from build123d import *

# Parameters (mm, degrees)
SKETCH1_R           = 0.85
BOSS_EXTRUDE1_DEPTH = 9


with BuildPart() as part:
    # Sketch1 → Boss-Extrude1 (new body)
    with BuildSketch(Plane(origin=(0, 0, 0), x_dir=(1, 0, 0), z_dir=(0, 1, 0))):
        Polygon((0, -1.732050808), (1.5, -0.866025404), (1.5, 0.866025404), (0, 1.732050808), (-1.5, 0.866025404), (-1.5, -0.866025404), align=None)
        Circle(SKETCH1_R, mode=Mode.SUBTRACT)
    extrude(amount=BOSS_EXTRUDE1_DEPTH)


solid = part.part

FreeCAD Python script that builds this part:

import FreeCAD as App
import Part
import Sketcher
from FreeCAD import Vector
Q = App.Units.Quantity

doc = App.newDocument("Part")
body = doc.addObject("PartDesign::Body", "Body")

sketch1 = body.newObject("Sketcher::SketchObject", "Sketch")
sketch1.AttachmentSupport = (doc.getObject("XZ_Plane"), [""])
sketch1.MapMode = "FlatFace"
sketch1.addGeometry([
    Part.LineSegment(Vector(0, 1.7, 0), Vector(1.5, 0.9, 0)),
    Part.LineSegment(Vector(1.5, 0.9, 0), Vector(1.5, -0.9, 0)),
    Part.LineSegment(Vector(1.5, -0.9, 0), Vector(0, -1.7, 0)),
    Part.LineSegment(Vector(0, -1.7, 0), Vector(-1.5, -0.9, 0)),
    Part.LineSegment(Vector(-1.5, -0.9, 0), Vector(-1.5, 0.9, 0)),
    Part.LineSegment(Vector(-1.5, 0.9, 0), Vector(0, 1.7, 0)),
    Part.Circle(Vector(0, 0, 0), Vector(0, 0, 1), 0.8),
], False)
sketch1.addConstraint([
    Sketcher.Constraint("Coincident", 0, 2, 1, 1),
    Sketcher.Constraint("Coincident", 1, 2, 2, 1),
    Sketcher.Constraint("Coincident", 2, 2, 3, 1),
    Sketcher.Constraint("Coincident", 3, 2, 4, 1),
    Sketcher.Constraint("Coincident", 4, 2, 5, 1),
    Sketcher.Constraint("Coincident", 5, 2, 0, 1),
    Sketcher.Constraint("Vertical", 1),
    Sketcher.Constraint("Vertical", 4),
    Sketcher.Constraint("Coincident", 6, 3, -1, 1),
    Sketcher.Constraint("Symmetric", 0, 2, 3, 2, -1, 1),
    Sketcher.Constraint("Symmetric", 2, 2, 5, 2, -1, 1),
    Sketcher.Constraint("PointOnObject", 2, 2, -2),
    Sketcher.Constraint("Parallel", 2, 5),
    Sketcher.Constraint("Horizontal", 1, 2, 3, 2),
    Sketcher.Constraint("Diameter", 6, Q("1.7 mm")),
    Sketcher.Constraint("Angle", 0, Q("-30 deg")),
    Sketcher.Constraint("DistanceX", 3, 2, 1, 2, Q("3 mm")),
    Sketcher.Constraint("DistanceY", 1, 2, 1, 1, Q("1.732051 mm")),
])
pad1 = body.newObject("PartDesign::Pad", "Pad")
pad1.Profile = sketch1
pad1.Length = 9
pad1.Reversed = True

doc.recompute()
